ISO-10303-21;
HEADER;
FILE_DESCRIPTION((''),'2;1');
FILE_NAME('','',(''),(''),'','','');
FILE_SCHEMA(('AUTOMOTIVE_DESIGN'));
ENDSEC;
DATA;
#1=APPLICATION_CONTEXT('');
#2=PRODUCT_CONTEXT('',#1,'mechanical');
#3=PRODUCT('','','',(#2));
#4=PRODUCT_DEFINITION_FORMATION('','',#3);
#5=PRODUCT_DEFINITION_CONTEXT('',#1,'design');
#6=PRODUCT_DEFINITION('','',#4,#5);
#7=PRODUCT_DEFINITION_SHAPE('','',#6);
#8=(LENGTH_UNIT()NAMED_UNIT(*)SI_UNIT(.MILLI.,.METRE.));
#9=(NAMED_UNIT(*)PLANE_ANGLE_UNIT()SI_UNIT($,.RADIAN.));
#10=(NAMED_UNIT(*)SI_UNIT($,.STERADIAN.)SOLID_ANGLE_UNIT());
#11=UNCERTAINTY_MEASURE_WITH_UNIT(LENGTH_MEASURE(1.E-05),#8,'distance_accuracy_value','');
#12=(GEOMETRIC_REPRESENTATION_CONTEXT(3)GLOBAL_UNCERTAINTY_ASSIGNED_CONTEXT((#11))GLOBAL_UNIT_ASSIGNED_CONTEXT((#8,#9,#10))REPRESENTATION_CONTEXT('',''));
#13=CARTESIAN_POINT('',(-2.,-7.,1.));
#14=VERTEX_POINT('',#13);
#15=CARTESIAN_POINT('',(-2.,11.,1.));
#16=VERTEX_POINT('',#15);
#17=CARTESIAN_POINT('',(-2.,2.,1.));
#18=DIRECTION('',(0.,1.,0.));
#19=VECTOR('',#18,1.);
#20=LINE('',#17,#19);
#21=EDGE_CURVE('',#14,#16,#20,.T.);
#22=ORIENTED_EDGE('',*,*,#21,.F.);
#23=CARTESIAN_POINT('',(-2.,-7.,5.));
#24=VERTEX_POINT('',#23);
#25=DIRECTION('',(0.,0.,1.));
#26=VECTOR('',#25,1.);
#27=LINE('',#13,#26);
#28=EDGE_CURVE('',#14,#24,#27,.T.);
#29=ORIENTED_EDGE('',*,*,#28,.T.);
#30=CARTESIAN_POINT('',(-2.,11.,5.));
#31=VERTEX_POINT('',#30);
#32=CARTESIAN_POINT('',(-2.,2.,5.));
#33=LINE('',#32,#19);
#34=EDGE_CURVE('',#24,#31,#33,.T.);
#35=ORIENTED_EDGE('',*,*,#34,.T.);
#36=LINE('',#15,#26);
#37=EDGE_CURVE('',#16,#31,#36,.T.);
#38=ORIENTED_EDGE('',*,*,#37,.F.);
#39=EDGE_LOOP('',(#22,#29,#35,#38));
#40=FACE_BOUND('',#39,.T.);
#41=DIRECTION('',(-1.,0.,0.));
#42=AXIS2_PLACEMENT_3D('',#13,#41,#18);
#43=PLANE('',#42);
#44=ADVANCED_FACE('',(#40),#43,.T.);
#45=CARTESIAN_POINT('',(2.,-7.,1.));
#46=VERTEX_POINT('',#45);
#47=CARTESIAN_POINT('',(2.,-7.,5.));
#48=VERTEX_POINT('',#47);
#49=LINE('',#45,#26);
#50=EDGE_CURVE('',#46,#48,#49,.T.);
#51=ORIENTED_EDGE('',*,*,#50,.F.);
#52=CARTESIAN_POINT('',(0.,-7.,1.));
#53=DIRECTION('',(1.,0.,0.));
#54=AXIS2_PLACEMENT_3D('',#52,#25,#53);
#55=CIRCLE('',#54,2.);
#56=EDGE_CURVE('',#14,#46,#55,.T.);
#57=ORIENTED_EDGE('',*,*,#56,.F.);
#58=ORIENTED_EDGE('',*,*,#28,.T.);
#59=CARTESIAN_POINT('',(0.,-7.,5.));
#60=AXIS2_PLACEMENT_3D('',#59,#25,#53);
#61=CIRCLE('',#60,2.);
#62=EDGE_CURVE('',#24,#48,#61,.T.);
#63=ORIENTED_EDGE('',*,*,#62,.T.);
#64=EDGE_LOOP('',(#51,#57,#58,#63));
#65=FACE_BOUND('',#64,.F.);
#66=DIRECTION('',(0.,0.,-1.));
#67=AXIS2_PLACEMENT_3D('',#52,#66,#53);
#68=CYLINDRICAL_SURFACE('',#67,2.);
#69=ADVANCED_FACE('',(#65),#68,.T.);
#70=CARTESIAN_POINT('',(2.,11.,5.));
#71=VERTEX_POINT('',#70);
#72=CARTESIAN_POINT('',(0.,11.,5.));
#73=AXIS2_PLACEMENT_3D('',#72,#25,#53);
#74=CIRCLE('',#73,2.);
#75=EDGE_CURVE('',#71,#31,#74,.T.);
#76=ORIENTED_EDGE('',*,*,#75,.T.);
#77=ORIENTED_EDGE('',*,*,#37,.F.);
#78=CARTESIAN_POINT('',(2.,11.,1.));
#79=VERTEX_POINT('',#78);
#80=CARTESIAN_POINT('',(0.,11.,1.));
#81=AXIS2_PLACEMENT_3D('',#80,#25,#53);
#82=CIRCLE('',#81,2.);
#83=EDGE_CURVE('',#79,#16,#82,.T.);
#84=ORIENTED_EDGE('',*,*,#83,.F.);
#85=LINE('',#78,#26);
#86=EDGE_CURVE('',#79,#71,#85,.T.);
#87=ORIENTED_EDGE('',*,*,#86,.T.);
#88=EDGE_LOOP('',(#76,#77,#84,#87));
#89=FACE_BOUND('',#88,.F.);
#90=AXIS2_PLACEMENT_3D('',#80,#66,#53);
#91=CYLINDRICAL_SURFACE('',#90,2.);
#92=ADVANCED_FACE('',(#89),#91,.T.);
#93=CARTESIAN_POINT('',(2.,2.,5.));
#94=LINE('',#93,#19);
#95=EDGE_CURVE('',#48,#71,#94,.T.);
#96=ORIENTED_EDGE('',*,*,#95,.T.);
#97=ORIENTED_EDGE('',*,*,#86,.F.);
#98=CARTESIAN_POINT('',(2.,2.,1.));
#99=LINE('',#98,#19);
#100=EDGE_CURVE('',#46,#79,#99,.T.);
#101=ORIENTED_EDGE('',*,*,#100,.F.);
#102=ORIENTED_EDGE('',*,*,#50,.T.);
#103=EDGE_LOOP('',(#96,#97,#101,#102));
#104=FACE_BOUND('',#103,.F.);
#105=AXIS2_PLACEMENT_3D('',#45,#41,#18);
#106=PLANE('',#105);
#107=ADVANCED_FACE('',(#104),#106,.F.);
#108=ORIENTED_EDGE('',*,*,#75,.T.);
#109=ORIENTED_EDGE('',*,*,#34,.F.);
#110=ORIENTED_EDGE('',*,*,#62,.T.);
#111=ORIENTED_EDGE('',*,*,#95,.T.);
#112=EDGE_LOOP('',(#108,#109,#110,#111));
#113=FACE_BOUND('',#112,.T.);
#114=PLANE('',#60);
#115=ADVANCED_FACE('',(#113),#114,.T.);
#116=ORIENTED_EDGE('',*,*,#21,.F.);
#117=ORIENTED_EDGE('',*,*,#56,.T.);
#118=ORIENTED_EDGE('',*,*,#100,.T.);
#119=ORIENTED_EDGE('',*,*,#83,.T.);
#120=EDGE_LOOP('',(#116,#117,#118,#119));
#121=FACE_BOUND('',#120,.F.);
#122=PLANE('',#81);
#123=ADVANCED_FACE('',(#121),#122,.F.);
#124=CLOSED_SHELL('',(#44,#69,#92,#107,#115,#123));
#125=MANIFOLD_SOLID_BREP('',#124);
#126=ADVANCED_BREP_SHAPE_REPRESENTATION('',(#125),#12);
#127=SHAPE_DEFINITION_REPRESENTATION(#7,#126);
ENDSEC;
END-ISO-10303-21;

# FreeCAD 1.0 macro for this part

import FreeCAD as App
import Part
import Sketcher

doc = App.newDocument("Part")
params = doc.addObject("Spreadsheet::Sheet", "Params")
for row, (alias, value) in enumerate([
    ("sketch1_diameter", "4 mm"),
    ("pad1_length", "4 mm"),
    ("sketch2_diameter", "4 mm"),
    ("pad2_length", "4 mm"),
    ("sketch3_width", "4 mm"),
    ("sketch3_height", "18 mm"),
    ("pad3_length", "4 mm"),
], start=1):
    params.set(f"A{row}", alias)
    params.set(f"B{row}", "=" + value)
    params.setAlias(f"B{row}", alias)

body = doc.addObject("PartDesign::Body", "Body")

# Sketch on XY plane
sketch1 = doc.addObject("Sketcher::SketchObject", "Sketch")
body.addObject(sketch1)
sketch1.AttachmentSupport = (doc.XY_Plane, [""])
sketch1.MapMode = "FlatFace"
sketch1.AttachmentOffset = App.Placement(App.Vector(0, 0, 1), App.Rotation())
sketch1.addGeometry(Part.Circle(App.Vector(0, 11, 0), App.Vector(0, 0, 1), 2), False)
sketch1.addConstraint(Sketcher.Constraint("PointOnObject", 0, 3, -2))
sketch1.addConstraint(Sketcher.Constraint("Diameter", 0, 4.0))
sketch1.addConstraint(Sketcher.Constraint("DistanceY", -1, 1, 0, 3, 11.0))
sketch1.setExpression("Constraints[1]", "Params.sketch1_diameter")
pad1 = doc.addObject("PartDesign::Pad", "Pad")
body.addObject(pad1)
pad1.Profile = sketch1
pad1.setExpression("Length", "Params.pad1_length")
body2 = doc.addObject("PartDesign::Body", "Body001")

# Sketch on XY plane
sketch2 = doc.addObject("Sketcher::SketchObject", "Sketch001")
body2.addObject(sketch2)
sketch2.AttachmentSupport = (doc.getObject("XY_Plane001"), [""])
sketch2.MapMode = "FlatFace"
sketch2.AttachmentOffset = App.Placement(App.Vector(0, 0, 1), App.Rotation())
sketch2.addGeometry(Part.Circle(App.Vector(0, -7, 0), App.Vector(0, 0, 1), 2), False)
sketch2.addConstraint(Sketcher.Constraint("PointOnObject", 0, 3, -2))
sketch2.addConstraint(Sketcher.Constraint("Diameter", 0, 4.0))
sketch2.addConstraint(Sketcher.Constraint("DistanceY", 0, 3, -1, 1, 7.0))
sketch2.setExpression("Constraints[1]", "Params.sketch2_diameter")
pad2 = doc.addObject("PartDesign::Pad", "Pad001")
body2.addObject(pad2)
pad2.Profile = sketch2
pad2.setExpression("Length", "Params.pad2_length")
body3 = doc.addObject("PartDesign::Body", "Body002")

# Sketch on XY plane
sketch3 = doc.addObject("Sketcher::SketchObject", "Sketch002")
body3.addObject(sketch3)
sketch3.AttachmentSupport = (doc.getObject("XY_Plane002"), [""])
sketch3.MapMode = "FlatFace"
sketch3.AttachmentOffset = App.Placement(App.Vector(0, 0, 1), App.Rotation())
sketch3.addGeometry(Part.LineSegment(App.Vector(-2, 11, 0), App.Vector(-2, -7, 0)), False)
sketch3.addGeometry(Part.LineSegment(App.Vector(-2, -7, 0), App.Vector(2, -7, 0)), False)
sketch3.addGeometry(Part.LineSegment(App.Vector(2, -7, 0), App.Vector(2, 11, 0)), False)
sketch3.addGeometry(Part.LineSegment(App.Vector(2, 11, 0), App.Vector(-2, 11, 0)), False)
sketch3.addConstraint(Sketcher.Constraint("Coincident", 0, 2, 1, 1))
sketch3.addConstraint(Sketcher.Constraint("Coincident", 1, 2, 2, 1))
sketch3.addConstraint(Sketcher.Constraint("Coincident", 2, 2, 3, 1))
sketch3.addConstraint(Sketcher.Constraint("Coincident", 3, 2, 0, 1))
sketch3.addConstraint(Sketcher.Constraint("Vertical", 0))
sketch3.addConstraint(Sketcher.Constraint("Horizontal", 1))
sketch3.addConstraint(Sketcher.Constraint("Vertical", 2))
sketch3.addConstraint(Sketcher.Constraint("Horizontal", 3))
sketch3.addConstraint(Sketcher.Constraint("DistanceX", 1, 1, 1, 2, 4.0))
sketch3.addConstraint(Sketcher.Constraint("DistanceY", 0, 2, 0, 1, 18.0))
sketch3.addConstraint(Sketcher.Constraint("DistanceX", 0, 2, -1, 1, 2.0))
sketch3.addConstraint(Sketcher.Constraint("DistanceY", 0, 2, -1, 1, 7.0))
sketch3.setExpression("Constraints[8]", "Params.sketch3_width")
sketch3.setExpression("Constraints[9]", "Params.sketch3_height")
pad3 = doc.addObject("PartDesign::Pad", "Pad002")
body3.addObject(pad3)
pad3.Profile = sketch3
pad3.setExpression("Length", "Params.pad3_length")
doc.recompute()

boolean = doc.addObject("PartDesign::Boolean", "Boolean")
body3.addObject(boolean)
boolean.Type = "Fuse"
boolean.addObjects([body])
doc.recompute()

boolean2 = doc.addObject("PartDesign::Boolean", "Boolean001")
body3.addObject(boolean2)
boolean2.Type = "Fuse"
boolean2.addObjects([body2])

doc.recompute()
